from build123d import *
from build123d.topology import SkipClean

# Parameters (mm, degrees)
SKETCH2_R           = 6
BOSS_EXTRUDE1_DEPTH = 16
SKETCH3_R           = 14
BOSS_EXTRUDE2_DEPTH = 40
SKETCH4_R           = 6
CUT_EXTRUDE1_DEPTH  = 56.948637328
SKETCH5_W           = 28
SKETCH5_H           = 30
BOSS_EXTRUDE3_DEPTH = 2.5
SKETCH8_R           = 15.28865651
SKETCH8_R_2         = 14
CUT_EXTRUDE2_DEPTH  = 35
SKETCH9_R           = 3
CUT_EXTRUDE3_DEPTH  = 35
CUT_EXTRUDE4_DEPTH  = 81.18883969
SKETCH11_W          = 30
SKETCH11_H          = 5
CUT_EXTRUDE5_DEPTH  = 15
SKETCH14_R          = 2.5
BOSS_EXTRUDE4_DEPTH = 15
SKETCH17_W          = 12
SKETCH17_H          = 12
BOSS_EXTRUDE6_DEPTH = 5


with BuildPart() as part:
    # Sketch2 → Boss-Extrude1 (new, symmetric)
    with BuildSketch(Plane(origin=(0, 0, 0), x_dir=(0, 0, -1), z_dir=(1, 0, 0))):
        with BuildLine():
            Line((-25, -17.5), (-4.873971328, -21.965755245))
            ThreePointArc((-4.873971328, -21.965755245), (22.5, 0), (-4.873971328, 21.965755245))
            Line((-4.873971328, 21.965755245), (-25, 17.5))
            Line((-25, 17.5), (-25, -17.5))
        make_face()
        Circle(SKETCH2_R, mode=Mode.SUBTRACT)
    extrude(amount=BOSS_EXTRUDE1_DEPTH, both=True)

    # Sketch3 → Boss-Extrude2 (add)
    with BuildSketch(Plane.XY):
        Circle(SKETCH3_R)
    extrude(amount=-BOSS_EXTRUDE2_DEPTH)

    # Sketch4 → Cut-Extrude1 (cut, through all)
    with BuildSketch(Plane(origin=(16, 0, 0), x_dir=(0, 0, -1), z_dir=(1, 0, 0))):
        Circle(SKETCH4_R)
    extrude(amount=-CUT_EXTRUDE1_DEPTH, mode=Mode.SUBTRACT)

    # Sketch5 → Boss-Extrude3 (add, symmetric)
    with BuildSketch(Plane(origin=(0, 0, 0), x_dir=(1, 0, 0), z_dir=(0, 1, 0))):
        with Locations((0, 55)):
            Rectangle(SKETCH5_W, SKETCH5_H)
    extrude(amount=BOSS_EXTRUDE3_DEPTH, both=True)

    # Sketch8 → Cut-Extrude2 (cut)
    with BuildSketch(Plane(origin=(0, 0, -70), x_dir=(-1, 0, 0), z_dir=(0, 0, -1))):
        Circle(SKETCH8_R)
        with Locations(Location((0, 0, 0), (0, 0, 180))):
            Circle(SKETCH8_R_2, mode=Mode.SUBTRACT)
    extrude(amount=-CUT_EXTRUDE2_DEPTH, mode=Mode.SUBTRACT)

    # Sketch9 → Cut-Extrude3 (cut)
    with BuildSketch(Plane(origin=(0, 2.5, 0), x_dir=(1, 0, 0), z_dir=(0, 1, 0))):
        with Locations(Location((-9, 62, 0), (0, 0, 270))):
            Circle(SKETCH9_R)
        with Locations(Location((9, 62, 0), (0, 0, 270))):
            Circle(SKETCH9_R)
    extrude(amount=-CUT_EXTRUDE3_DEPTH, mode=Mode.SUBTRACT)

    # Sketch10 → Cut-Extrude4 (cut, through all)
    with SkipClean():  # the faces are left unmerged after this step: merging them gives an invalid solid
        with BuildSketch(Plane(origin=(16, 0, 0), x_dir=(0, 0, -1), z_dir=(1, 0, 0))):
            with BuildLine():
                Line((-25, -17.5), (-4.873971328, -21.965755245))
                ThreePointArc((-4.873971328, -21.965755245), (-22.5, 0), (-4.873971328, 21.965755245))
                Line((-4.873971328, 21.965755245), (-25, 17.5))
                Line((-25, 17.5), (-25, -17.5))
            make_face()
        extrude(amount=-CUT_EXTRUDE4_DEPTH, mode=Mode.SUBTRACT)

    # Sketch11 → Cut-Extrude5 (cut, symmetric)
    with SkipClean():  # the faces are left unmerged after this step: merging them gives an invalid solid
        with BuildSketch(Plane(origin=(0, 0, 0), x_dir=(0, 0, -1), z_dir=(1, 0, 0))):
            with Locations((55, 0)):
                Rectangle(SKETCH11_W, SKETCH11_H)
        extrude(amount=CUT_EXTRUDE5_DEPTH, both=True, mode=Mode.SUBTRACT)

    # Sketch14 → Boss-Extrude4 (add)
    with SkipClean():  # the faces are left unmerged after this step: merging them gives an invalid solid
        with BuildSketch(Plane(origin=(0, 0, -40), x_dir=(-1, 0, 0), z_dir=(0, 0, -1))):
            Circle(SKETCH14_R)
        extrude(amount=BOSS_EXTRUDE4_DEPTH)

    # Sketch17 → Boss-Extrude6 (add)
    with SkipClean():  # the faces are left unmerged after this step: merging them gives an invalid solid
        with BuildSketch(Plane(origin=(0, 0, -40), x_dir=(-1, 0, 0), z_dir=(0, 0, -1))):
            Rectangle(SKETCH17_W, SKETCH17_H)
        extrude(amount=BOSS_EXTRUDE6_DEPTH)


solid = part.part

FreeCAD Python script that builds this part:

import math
import FreeCAD as App
import Part
import Sketcher

V = App.Vector
Q = App.Units.Quantity


def add_polygon(sketch, points):
    """Adds a closed chain of lines whose ends are joined by coincident constraints."""
    first, n = sketch.GeometryCount, len(points)
    for a, b in zip(points, points[1:] + points[:1]):
        sketch.addGeometry(Part.LineSegment(App.Vector(*a, 0), App.Vector(*b, 0)), False)
    for i in range(n):
        sketch.addConstraint(Sketcher.Constraint("Coincident", first + i, 2, first + (i + 1) % n, 1))

doc = App.newDocument("Part")
body = doc.addObject("PartDesign::Body", "Body")

sketch1 = body.newObject("Sketcher::SketchObject", "Sketch")
sketch1.AttachmentSupport = (doc.getObject("YZ_Plane"), [""])
sketch1.MapMode = "FlatFace"
sketch1.addGeometry([
    Part.LineSegment(V(-18, 25, 0), V(-22, 5, 0)),
    Part.ArcOfCircle(Part.Circle(V(0, 0, 0), V(0, 0, 1), 22), math.radians(167), math.radians(373)),
    Part.LineSegment(V(22, 5, 0), V(18, 25, 0)),
    Part.LineSegment(V(18, 25, 0), V(-18, 25, 0)),
    Part.Circle(V(0, 0, 0), V(0, 0, 1), 6),
], False)
sketch1.addConstraint([
    Sketcher.Constraint("Tangent", 0, 2, 1, 1),
    Sketcher.Constraint("Tangent", 1, 2, 2, 1),
    Sketcher.Constraint("Coincident", 2, 2, 3, 1),
    Sketcher.Constraint("Coincident", 3, 2, 0, 1),
    Sketcher.Constraint("Horizontal", 3),
    Sketcher.Constraint("Coincident", 1, 3, -1, 1),
    Sketcher.Constraint("Coincident", 4, 3, -1, 1),
    Sketcher.Constraint("Horizontal", 0, 2, 1, 2),
    Sketcher.Constraint("Diameter", 4, Q("12 mm")),
    Sketcher.Constraint("Radius", 1, Q("22.5 mm")),
    Sketcher.Constraint("DistanceX", 3, 2, 3, 1, Q("35 mm")),
    Sketcher.Constraint("DistanceY", -1, 1, 2, 2, Q("25 mm")),
])
pad1 = body.newObject("PartDesign::Pad", "Pad")
pad1.Profile = sketch1
pad1.Length = 32
pad1.Midplane = True

sketch2 = body.newObject("Sketcher::SketchObject", "Sketch001")
sketch2.AttachmentSupport = (doc.getObject("XY_Plane"), [""])
sketch2.MapMode = "FlatFace"
sketch2.addGeometry(Part.Circle(V(0, 0, 0), V(0, 0, 1), 14), False)
sketch2.addConstraint([
    Sketcher.Constraint("Coincident", 0, 3, -1, 1),
    Sketcher.Constraint("Diameter", 0, Q("28 mm")),
])
pad2 = body.newObject("PartDesign::Pad", "Pad001")
pad2.Profile = sketch2
pad2.Length = 40
pad2.Reversed = True

sketch3 = body.newObject("Sketcher::SketchObject", "Sketch002")
sketch3.AttachmentSupport = (doc.getObject("YZ_Plane"), [""])
sketch3.MapMode = "FlatFace"
sketch3.AttachmentOffset = App.Placement(V(0, 0, 16), App.Rotation())
sketch3.addGeometry(Part.Circle(V(0, 0, 0), V(0, 0, 1), 6), False)
sketch3.addConstraint([
    Sketcher.Constraint("Coincident", 0, 3, -1, 1),
    Sketcher.Constraint("Diameter", 0, Q("12 mm")),
])
pocket1 = body.newObject("PartDesign::Pocket", "Pocket")
pocket1.Profile = sketch3
pocket1.Type = "ThroughAll"

sketch4 = body.newObject("Sketcher::SketchObject", "Sketch003")
sketch4.AttachmentSupport = (doc.getObject("XZ_Plane"), [""])
sketch4.MapMode = "FlatFace"
add_polygon(sketch4, [(-14, -70), (-14, -40), (14, -40), (14, -70)])
sketch4.addConstraint([
    Sketcher.Constraint("Vertical", 0),
    Sketcher.Constraint("Horizontal", 1),
    Sketcher.Constraint("Vertical", 2),
    Sketcher.Constraint("Horizontal", 3),
    Sketcher.Constraint("DistanceX", 1, 1, 1, 2, Q("28 mm")),
    Sketcher.Constraint("DistanceY", 0, 1, 0, 2, Q("30 mm")),
    Sketcher.Constraint("DistanceX", 0, 2, -1, 1, Q("14 mm")),
    Sketcher.Constraint("DistanceY", 0, 2, -1, 1, Q("40 mm")),
])
pad3 = body.newObject("PartDesign::Pad", "Pad002")
pad3.Profile = sketch4
pad3.Length = 5
pad3.Midplane = True

sketch5 = body.newObject("Sketcher::SketchObject", "Sketch004")
sketch5.AttachmentSupport = (doc.getObject("XY_Plane"), [""])
sketch5.MapMode = "FlatFace"
sketch5.AttachmentOffset = App.Placement(V(0, 0, -70), App.Rotation())
sketch5.addGeometry([
    Part.Circle(V(0, 0, 0), V(0, 0, 1), 15),
    Part.Circle(V(0, 0, 0), V(0, 0, 1), 14),
], False)
sketch5.addConstraint([
    Sketcher.Constraint("Coincident", 0, 3, -1, 1),
    Sketcher.Constraint("Coincident", 1, 3, -1, 1),
    Sketcher.Constraint("Diameter", 1, Q("28 mm")),
    Sketcher.Constraint("Diameter", 0, Q("30.577313 mm")),
])
pocket2 = body.newObject("PartDesign::Pocket", "Pocket001")
pocket2.Profile = sketch5
pocket2.Length = 35
pocket2.Reversed = True

sketch6 = body.newObject("Sketcher::SketchObject", "Sketch005")
sketch6.AttachmentSupport = (doc.getObject("XZ_Plane"), [""])
sketch6.MapMode = "FlatFace"
sketch6.AttachmentOffset = App.Placement(V(0, 0, -2.5), App.Rotation())
sketch6.addGeometry([
    Part.Circle(V(-9, -62, 0), V(0, 0, 1), 3),
    Part.Circle(V(9, -62, 0), V(0, 0, 1), 3),
], False)
sketch6.addConstraint([
    Sketcher.Constraint("Equal", 0, 1),
    Sketcher.Constraint("Symmetric", 0, 3, 1, 3, -2),
    Sketcher.Constraint("Diameter", 0, Q("6 mm")),
    Sketcher.Constraint("DistanceX", 0, 3, -1, 1, Q("9 mm")),
    Sketcher.Constraint("DistanceY", 0, 3, -1, 1, Q("62 mm")),
])
pocket3 = body.newObject("PartDesign::Pocket", "Pocket002")
pocket3.Profile = sketch6
pocket3.Length = 35
pocket3.Reversed = True

sketch7 = body.newObject("Sketcher::SketchObject", "Sketch006")
sketch7.AttachmentSupport = (doc.getObject("YZ_Plane"), [""])
sketch7.MapMode = "FlatFace"
sketch7.AttachmentOffset = App.Placement(V(0, 0, 16), App.Rotation())
sketch7.addGeometry([
    Part.LineSegment(V(-18, 25, 0), V(-22, 5, 0)),
    Part.ArcOfCircle(Part.Circle(V(0, 0, 0), V(0, 0, 1), 22), math.radians(13), math.radians(167)),
    Part.LineSegment(V(22, 5, 0), V(18, 25, 0)),
    Part.LineSegment(V(18, 25, 0), V(-18, 25, 0)),
], False)
sketch7.addConstraint([
    Sketcher.Constraint("Tangent", 0, 2, 1, 2),
    Sketcher.Constraint("Tangent", 1, 1, 2, 1),
    Sketcher.Constraint("Coincident", 2, 2, 3, 1),
    Sketcher.Constraint("Coincident", 3, 2, 0, 1),
    Sketcher.Constraint("Horizontal", 3),
    Sketcher.Constraint("Coincident", 1, 3, -1, 1),
    Sketcher.Constraint("Horizontal", 0, 2, 1, 1),
    Sketcher.Constraint("Radius", 1, Q("22.5 mm")),
    Sketcher.Constraint("DistanceX", 3, 2, 3, 1, Q("35 mm")),
    Sketcher.Constraint("DistanceY", -1, 1, 2, 2, Q("25 mm")),
])
pocket4 = body.newObject("PartDesign::Pocket", "Pocket003")
pocket4.Profile = sketch7
pocket4.Type = "ThroughAll"

sketch8 = body.newObject("Sketcher::SketchObject", "Sketch007")
sketch8.AttachmentSupport = (doc.getObject("YZ_Plane"), [""])
sketch8.MapMode = "FlatFace"
add_polygon(sketch8, [(2, -40), (-2, -40), (-2, -70), (2, -70)])
sketch8.addConstraint([
    Sketcher.Constraint("Horizontal", 0),
    Sketcher.Constraint("Vertical", 1),
    Sketcher.Constraint("Horizontal", 2),
    Sketcher.Constraint("Vertical", 3),
    Sketcher.Constraint("DistanceX", 0, 2, 0, 1, Q("5 mm")),
    Sketcher.Constraint("DistanceY", 1, 2, 1, 1, Q("30 mm")),
    Sketcher.Constraint("DistanceY", 0, 2, -1, 1, Q("40 mm")),
    Sketcher.Constraint("DistanceX", 0, 2, -1, 1, Q("2.5 mm")),
])
pocket5 = body.newObject("PartDesign::Pocket", "Pocket004")
pocket5.Profile = sketch8
pocket5.Length = 30
pocket5.Midplane = True

sketch9 = body.newObject("Sketcher::SketchObject", "Sketch008")
sketch9.AttachmentSupport = (doc.getObject("XY_Plane"), [""])
sketch9.MapMode = "FlatFace"
sketch9.AttachmentOffset = App.Placement(V(0, 0, -40), App.Rotation())
sketch9.addGeometry(Part.Circle(V(0, 0, 0), V(0, 0, 1), 2.5), False)
sketch9.addConstraint([
    Sketcher.Constraint("Coincident", 0, 3, -1, 1),
    Sketcher.Constraint("Diameter", 0, Q("5 mm")),
])
pad4 = body.newObject("PartDesign::Pad", "Pad003")
pad4.Profile = sketch9
pad4.Length = 15
pad4.Reversed = True

sketch10 = body.newObject("Sketcher::SketchObject", "Sketch009")
sketch10.AttachmentSupport = (doc.getObject("XY_Plane"), [""])
sketch10.MapMode = "FlatFace"
sketch10.AttachmentOffset = App.Placement(V(0, 0, -40), App.Rotation())
add_polygon(sketch10, [(6, 6), (6, -6), (-6, -6), (-6, 6)])
sketch10.addConstraint([
    Sketcher.Constraint("Vertical", 0),
    Sketcher.Constraint("Horizontal", 1),
    Sketcher.Constraint("Vertical", 2),
    Sketcher.Constraint("Horizontal", 3),
    Sketcher.Constraint("Symmetric", 0, 2, 2, 2, -1, 1),
    Sketcher.Constraint("Equal", 3, 0),
    Sketcher.Constraint("DistanceX", 1, 2, 1, 1, Q("12 mm")),
])
pad5 = body.newObject("PartDesign::Pad", "Pad004")
pad5.Profile = sketch10
pad5.Length = 5
pad5.Reversed = True

doc.recompute()
